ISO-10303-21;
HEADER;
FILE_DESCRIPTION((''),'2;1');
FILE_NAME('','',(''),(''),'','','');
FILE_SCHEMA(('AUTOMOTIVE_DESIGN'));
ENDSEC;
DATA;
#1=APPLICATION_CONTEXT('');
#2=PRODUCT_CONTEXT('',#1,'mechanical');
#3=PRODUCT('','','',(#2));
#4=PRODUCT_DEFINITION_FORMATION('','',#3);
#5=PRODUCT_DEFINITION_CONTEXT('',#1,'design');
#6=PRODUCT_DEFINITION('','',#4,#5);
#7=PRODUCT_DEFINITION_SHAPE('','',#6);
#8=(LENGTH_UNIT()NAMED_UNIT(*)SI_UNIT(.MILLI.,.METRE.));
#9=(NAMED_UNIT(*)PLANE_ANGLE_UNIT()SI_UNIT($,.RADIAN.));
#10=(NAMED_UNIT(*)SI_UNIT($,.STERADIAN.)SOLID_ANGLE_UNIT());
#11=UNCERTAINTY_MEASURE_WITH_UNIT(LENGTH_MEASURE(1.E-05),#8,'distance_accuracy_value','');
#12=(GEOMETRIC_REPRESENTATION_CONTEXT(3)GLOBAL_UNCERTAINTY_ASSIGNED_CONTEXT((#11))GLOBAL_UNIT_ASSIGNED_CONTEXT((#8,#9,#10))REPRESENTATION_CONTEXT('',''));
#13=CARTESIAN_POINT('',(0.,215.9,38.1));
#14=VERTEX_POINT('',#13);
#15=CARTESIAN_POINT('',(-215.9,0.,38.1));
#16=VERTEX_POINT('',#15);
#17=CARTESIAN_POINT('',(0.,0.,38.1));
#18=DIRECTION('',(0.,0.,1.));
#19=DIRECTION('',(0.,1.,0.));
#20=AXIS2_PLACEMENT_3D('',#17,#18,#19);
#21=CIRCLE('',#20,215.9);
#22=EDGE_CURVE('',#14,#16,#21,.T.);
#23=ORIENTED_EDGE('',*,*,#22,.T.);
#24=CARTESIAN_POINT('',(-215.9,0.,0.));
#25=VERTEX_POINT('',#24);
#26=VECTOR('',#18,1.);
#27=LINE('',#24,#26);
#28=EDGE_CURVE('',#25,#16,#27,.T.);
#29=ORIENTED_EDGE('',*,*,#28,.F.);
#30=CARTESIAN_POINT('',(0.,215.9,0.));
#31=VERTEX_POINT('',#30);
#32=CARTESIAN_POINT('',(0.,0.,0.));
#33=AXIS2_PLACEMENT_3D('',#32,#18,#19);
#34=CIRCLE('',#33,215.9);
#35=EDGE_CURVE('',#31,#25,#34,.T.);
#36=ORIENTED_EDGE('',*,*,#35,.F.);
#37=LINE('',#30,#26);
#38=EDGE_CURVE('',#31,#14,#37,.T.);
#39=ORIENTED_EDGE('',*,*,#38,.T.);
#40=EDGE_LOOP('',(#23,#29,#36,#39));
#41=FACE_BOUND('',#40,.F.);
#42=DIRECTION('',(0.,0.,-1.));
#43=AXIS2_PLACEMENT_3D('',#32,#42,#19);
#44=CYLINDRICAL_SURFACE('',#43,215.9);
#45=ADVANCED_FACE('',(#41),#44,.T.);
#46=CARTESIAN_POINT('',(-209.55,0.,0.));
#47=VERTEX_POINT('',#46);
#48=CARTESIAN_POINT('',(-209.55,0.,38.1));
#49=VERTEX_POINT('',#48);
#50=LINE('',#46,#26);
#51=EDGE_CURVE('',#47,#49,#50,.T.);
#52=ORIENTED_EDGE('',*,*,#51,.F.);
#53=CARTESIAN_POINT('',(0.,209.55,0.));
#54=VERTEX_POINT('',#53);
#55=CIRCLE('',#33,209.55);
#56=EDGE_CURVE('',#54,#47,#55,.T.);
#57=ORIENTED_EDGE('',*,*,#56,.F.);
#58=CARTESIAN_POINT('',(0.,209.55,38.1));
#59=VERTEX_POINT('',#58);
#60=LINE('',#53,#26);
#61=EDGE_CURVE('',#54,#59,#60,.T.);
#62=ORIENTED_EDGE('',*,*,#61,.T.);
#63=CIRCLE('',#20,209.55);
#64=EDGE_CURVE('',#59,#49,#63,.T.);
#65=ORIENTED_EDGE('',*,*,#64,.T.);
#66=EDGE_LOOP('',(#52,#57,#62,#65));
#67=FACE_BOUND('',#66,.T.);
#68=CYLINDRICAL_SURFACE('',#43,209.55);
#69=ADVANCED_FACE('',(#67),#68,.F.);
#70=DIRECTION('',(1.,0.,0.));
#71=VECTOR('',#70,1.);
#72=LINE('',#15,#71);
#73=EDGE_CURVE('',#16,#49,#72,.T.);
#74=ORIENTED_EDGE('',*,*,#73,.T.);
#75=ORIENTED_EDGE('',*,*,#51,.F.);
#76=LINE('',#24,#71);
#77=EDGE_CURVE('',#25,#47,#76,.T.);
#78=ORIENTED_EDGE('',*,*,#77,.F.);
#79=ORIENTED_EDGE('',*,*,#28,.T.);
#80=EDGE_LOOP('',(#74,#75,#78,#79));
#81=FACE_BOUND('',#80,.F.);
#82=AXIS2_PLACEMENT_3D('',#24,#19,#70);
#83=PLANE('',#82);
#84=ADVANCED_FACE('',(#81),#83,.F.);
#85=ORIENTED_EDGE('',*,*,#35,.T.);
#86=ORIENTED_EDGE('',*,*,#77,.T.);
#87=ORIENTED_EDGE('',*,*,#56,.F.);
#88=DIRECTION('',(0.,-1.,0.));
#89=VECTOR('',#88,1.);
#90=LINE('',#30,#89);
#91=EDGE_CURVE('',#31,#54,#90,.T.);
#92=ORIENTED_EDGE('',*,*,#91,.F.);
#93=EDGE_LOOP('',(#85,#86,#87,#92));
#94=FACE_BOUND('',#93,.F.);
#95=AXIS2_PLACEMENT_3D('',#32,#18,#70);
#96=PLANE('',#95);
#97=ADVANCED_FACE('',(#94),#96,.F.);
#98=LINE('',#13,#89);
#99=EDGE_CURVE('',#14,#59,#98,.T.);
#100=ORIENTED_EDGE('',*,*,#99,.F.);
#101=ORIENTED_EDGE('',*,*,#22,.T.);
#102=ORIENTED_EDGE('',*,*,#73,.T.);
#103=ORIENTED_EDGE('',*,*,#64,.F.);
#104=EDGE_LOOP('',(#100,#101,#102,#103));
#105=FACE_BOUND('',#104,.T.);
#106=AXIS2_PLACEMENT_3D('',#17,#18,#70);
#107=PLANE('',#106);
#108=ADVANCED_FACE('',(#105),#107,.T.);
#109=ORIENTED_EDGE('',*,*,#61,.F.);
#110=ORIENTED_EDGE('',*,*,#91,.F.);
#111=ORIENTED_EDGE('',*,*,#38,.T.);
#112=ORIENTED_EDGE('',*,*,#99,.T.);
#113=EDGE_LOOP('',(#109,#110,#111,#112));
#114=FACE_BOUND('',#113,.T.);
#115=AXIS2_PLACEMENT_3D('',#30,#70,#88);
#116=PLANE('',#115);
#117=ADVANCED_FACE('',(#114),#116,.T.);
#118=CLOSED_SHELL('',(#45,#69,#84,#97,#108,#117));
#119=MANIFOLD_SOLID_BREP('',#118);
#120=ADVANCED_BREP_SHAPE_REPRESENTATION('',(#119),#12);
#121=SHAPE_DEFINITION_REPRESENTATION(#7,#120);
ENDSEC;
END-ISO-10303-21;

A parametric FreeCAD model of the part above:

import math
import FreeCAD as App
import Part
import Sketcher
from FreeCAD import Vector
Q = App.Units.Quantity

doc = App.newDocument("Part")
body = doc.addObject("PartDesign::Body", "Body")

sketch1 = doc.addObject("Sketcher::SketchObject", "Sketch")
body.addObject(sketch1)
sketch1.AttachmentSupport = (doc.XY_Plane, [""])
sketch1.MapMode = "FlatFace"
sketch1.addGeometry([
    Part.ArcOfCircle(Part.Circle(Vector(0, 0, 0), Vector(0, 0, 1), 210), math.radians(90), math.radians(180)),
    Part.LineSegment(Vector(0, 210, 0), Vector(0, 216, 0)),
    Part.ArcOfCircle(Part.Circle(Vector(0, 0, 0), Vector(0, 0, 1), 216), math.radians(90), math.radians(180)),
    Part.LineSegment(Vector(-216, 0, 0), Vector(-210, 0, 0)),
], False)
sketch1.addConstraint([
    Sketcher.Constraint("Coincident", 0, 1, 1, 1),
    Sketcher.Constraint("Coincident", 1, 2, 2, 1),
    Sketcher.Constraint("Coincident", 2, 2, 3, 1),
    Sketcher.Constraint("Coincident", 3, 2, 0, 2),
    Sketcher.Constraint("Vertical", 1),
    Sketcher.Constraint("Horizontal", 3),
    Sketcher.Constraint("Coincident", 0, 3, -1, 1),
    Sketcher.Constraint("Coincident", 2, 3, -1, 1),
    Sketcher.Constraint("PointOnObject", 0, 1, -2),
    Sketcher.Constraint("PointOnObject", 2, 2, -1),
    Sketcher.Constraint("Radius", 0, Q("8.25 in")),
    Sketcher.Constraint("DistanceX", 3, 1, 3, 2, Q("0.25 in")),
])
pad1 = doc.addObject("PartDesign::Pad", "Pad")
body.addObject(pad1)
pad1.Profile = sketch1
pad1.Length = Q("1.5 in")

doc.recompute()
